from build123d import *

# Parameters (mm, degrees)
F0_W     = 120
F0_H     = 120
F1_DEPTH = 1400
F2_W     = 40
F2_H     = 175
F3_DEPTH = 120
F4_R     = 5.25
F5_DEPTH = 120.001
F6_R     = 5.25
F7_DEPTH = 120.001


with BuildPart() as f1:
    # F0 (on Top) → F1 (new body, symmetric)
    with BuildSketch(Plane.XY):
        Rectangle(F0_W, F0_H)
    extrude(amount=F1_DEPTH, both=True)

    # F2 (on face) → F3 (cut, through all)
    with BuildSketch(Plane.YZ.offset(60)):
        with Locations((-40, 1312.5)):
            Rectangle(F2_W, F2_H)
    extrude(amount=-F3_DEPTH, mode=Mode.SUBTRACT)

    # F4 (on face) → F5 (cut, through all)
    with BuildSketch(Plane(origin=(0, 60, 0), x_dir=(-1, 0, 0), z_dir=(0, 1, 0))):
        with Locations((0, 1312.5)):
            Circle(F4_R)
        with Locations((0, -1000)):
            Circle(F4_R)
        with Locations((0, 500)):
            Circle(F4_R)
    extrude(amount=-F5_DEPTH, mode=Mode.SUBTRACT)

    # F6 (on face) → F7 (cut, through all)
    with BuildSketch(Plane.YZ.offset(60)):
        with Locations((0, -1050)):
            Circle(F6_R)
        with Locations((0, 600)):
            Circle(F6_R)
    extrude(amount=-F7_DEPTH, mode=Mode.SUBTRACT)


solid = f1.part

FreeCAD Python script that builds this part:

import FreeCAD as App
import Part
import Sketcher
from FreeCAD import Vector
Q = App.Units.Quantity

doc = App.newDocument("Part")
body = doc.addObject("PartDesign::Body", "Body")

# Sketch on XY plane
sketch1 = body.newObject("Sketcher::SketchObject", "Sketch")
sketch1.AttachmentSupport = (doc.getObject("XY_Plane"), [""])
sketch1.MapMode = "FlatFace"
sketch1.addGeometry(Part.LineSegment(Vector(-60, 60, 0), Vector(-60, -60, 0)), False)
sketch1.addGeometry(Part.LineSegment(Vector(-60, -60, 0), Vector(60, -60, 0)), False)
sketch1.addGeometry(Part.LineSegment(Vector(60, -60, 0), Vector(60, 60, 0)), False)
sketch1.addGeometry(Part.LineSegment(Vector(60, 60, 0), Vector(-60, 60, 0)), False)
sketch1.addConstraint(Sketcher.Constraint("Coincident", 0, 2, 1, 1))
sketch1.addConstraint(Sketcher.Constraint("Coincident", 1, 2, 2, 1))
sketch1.addConstraint(Sketcher.Constraint("Coincident", 2, 2, 3, 1))
sketch1.addConstraint(Sketcher.Constraint("Coincident", 3, 2, 0, 1))
sketch1.addConstraint(Sketcher.Constraint("Vertical", 0))
sketch1.addConstraint(Sketcher.Constraint("Horizontal", 1))
sketch1.addConstraint(Sketcher.Constraint("Vertical", 2))
sketch1.addConstraint(Sketcher.Constraint("Horizontal", 3))
sketch1.addConstraint(Sketcher.Constraint("Symmetric", 0, 2, 2, 2, -1, 1))
sketch1.addConstraint(Sketcher.Constraint("Equal", 3, 0))
sketch1.addConstraint(Sketcher.Constraint("DistanceX", 1, 1, 1, 2, Q("120 mm")))
pad1 = body.newObject("PartDesign::Pad", "Pad")
pad1.Profile = sketch1
pad1.Length = 2800
pad1.Midplane = True

# Sketch on YZ plane
sketch2 = body.newObject("Sketcher::SketchObject", "Sketch001")
sketch2.AttachmentSupport = (doc.getObject("YZ_Plane"), [""])
sketch2.MapMode = "FlatFace"
sketch2.AttachmentOffset = App.Placement(Vector(0, 0, 60), App.Rotation())
sketch2.addGeometry(Part.LineSegment(Vector(-60, 1400, 0), Vector(-60, 1225, 0)), False)
sketch2.addGeometry(Part.LineSegment(Vector(-60, 1225, 0), Vector(-20, 1225, 0)), False)
sketch2.addGeometry(Part.LineSegment(Vector(-20, 1225, 0), Vector(-20, 1400, 0)), False)
sketch2.addGeometry(Part.LineSegment(Vector(-20, 1400, 0), Vector(-60, 1400, 0)), False)
sketch2.addConstraint(Sketcher.Constraint("Coincident", 0, 2, 1, 1))
sketch2.addConstraint(Sketcher.Constraint("Coincident", 1, 2, 2, 1))
sketch2.addConstraint(Sketcher.Constraint("Coincident", 2, 2, 3, 1))
sketch2.addConstraint(Sketcher.Constraint("Coincident", 3, 2, 0, 1))
sketch2.addConstraint(Sketcher.Constraint("Vertical", 0))
sketch2.addConstraint(Sketcher.Constraint("Horizontal", 1))
sketch2.addConstraint(Sketcher.Constraint("Vertical", 2))
sketch2.addConstraint(Sketcher.Constraint("Horizontal", 3))
sketch2.addConstraint(Sketcher.Constraint("DistanceX", 1, 1, 1, 2, Q("40 mm")))
sketch2.addConstraint(Sketcher.Constraint("DistanceY", 0, 2, 0, 1, Q("175 mm")))
sketch2.addConstraint(Sketcher.Constraint("DistanceX", 0, 2, -1, 1, Q("60 mm")))
sketch2.addConstraint(Sketcher.Constraint("DistanceY", -1, 1, 0, 2, Q("1225 mm")))
pocket1 = body.newObject("PartDesign::Pocket", "Pocket")
pocket1.Profile = sketch2
pocket1.Type = "ThroughAll"

# Sketch on XZ plane
sketch3 = body.newObject("Sketcher::SketchObject", "Sketch002")
sketch3.AttachmentSupport = (doc.getObject("XZ_Plane"), [""])
sketch3.MapMode = "FlatFace"
sketch3.AttachmentOffset = App.Placement(Vector(0, 0, -60), App.Rotation())
sketch3.addGeometry(Part.Circle(Vector(0, 1312.5, 0), Vector(0, 0, 1), 5.25), False)
sketch3.addGeometry(Part.Circle(Vector(0, -1000, 0), Vector(0, 0, 1), 5.25), False)
sketch3.addGeometry(Part.Circle(Vector(0, 500, 0), Vector(0, 0, 1), 5.25), False)
sketch3.addConstraint(Sketcher.Constraint("Equal", 0, 1))
sketch3.addConstraint(Sketcher.Constraint("Equal", 1, 2))
sketch3.addConstraint(Sketcher.Constraint("PointOnObject", 0, 3, -2))
sketch3.addConstraint(Sketcher.Constraint("PointOnObject", 1, 3, -2))
sketch3.addConstraint(Sketcher.Constraint("PointOnObject", 2, 3, -2))
sketch3.addConstraint(Sketcher.Constraint("Diameter", 0, Q("10.5 mm")))
sketch3.addConstraint(Sketcher.Constraint("DistanceY", 1, 3, -1, 1, Q("1000 mm")))
sketch3.addConstraint(Sketcher.Constraint("DistanceY", -1, 1, 2, 3, Q("500 mm")))
sketch3.addConstraint(Sketcher.Constraint("DistanceY", -1, 1, 0, 3, Q("1312.5 mm")))
pocket2 = body.newObject("PartDesign::Pocket", "Pocket001")
pocket2.Profile = sketch3
pocket2.Type = "ThroughAll"
pocket2.Reversed = True

# Sketch on YZ plane
sketch4 = body.newObject("Sketcher::SketchObject", "Sketch003")
sketch4.AttachmentSupport = (doc.getObject("YZ_Plane"), [""])
sketch4.MapMode = "FlatFace"
sketch4.AttachmentOffset = App.Placement(Vector(0, 0, 60), App.Rotation())
sketch4.addGeometry(Part.Circle(Vector(0, -1050, 0), Vector(0, 0, 1), 5.25), False)
sketch4.addGeometry(Part.Circle(Vector(0, 600, 0), Vector(0, 0, 1), 5.25), False)
sketch4.addConstraint(Sketcher.Constraint("Equal", 0, 1))
sketch4.addConstraint(Sketcher.Constraint("PointOnObject", 0, 3, -2))
sketch4.addConstraint(Sketcher.Constraint("PointOnObject", 1, 3, -2))
sketch4.addConstraint(Sketcher.Constraint("Diameter", 0, Q("10.5 mm")))
sketch4.addConstraint(Sketcher.Constraint("DistanceY", 0, 3, -1, 1, Q("1050 mm")))
sketch4.addConstraint(Sketcher.Constraint("DistanceY", -1, 1, 1, 3, Q("600 mm")))
pocket3 = body.newObject("PartDesign::Pocket", "Pocket002")
pocket3.Profile = sketch4
pocket3.Type = "ThroughAll"

doc.recompute()
